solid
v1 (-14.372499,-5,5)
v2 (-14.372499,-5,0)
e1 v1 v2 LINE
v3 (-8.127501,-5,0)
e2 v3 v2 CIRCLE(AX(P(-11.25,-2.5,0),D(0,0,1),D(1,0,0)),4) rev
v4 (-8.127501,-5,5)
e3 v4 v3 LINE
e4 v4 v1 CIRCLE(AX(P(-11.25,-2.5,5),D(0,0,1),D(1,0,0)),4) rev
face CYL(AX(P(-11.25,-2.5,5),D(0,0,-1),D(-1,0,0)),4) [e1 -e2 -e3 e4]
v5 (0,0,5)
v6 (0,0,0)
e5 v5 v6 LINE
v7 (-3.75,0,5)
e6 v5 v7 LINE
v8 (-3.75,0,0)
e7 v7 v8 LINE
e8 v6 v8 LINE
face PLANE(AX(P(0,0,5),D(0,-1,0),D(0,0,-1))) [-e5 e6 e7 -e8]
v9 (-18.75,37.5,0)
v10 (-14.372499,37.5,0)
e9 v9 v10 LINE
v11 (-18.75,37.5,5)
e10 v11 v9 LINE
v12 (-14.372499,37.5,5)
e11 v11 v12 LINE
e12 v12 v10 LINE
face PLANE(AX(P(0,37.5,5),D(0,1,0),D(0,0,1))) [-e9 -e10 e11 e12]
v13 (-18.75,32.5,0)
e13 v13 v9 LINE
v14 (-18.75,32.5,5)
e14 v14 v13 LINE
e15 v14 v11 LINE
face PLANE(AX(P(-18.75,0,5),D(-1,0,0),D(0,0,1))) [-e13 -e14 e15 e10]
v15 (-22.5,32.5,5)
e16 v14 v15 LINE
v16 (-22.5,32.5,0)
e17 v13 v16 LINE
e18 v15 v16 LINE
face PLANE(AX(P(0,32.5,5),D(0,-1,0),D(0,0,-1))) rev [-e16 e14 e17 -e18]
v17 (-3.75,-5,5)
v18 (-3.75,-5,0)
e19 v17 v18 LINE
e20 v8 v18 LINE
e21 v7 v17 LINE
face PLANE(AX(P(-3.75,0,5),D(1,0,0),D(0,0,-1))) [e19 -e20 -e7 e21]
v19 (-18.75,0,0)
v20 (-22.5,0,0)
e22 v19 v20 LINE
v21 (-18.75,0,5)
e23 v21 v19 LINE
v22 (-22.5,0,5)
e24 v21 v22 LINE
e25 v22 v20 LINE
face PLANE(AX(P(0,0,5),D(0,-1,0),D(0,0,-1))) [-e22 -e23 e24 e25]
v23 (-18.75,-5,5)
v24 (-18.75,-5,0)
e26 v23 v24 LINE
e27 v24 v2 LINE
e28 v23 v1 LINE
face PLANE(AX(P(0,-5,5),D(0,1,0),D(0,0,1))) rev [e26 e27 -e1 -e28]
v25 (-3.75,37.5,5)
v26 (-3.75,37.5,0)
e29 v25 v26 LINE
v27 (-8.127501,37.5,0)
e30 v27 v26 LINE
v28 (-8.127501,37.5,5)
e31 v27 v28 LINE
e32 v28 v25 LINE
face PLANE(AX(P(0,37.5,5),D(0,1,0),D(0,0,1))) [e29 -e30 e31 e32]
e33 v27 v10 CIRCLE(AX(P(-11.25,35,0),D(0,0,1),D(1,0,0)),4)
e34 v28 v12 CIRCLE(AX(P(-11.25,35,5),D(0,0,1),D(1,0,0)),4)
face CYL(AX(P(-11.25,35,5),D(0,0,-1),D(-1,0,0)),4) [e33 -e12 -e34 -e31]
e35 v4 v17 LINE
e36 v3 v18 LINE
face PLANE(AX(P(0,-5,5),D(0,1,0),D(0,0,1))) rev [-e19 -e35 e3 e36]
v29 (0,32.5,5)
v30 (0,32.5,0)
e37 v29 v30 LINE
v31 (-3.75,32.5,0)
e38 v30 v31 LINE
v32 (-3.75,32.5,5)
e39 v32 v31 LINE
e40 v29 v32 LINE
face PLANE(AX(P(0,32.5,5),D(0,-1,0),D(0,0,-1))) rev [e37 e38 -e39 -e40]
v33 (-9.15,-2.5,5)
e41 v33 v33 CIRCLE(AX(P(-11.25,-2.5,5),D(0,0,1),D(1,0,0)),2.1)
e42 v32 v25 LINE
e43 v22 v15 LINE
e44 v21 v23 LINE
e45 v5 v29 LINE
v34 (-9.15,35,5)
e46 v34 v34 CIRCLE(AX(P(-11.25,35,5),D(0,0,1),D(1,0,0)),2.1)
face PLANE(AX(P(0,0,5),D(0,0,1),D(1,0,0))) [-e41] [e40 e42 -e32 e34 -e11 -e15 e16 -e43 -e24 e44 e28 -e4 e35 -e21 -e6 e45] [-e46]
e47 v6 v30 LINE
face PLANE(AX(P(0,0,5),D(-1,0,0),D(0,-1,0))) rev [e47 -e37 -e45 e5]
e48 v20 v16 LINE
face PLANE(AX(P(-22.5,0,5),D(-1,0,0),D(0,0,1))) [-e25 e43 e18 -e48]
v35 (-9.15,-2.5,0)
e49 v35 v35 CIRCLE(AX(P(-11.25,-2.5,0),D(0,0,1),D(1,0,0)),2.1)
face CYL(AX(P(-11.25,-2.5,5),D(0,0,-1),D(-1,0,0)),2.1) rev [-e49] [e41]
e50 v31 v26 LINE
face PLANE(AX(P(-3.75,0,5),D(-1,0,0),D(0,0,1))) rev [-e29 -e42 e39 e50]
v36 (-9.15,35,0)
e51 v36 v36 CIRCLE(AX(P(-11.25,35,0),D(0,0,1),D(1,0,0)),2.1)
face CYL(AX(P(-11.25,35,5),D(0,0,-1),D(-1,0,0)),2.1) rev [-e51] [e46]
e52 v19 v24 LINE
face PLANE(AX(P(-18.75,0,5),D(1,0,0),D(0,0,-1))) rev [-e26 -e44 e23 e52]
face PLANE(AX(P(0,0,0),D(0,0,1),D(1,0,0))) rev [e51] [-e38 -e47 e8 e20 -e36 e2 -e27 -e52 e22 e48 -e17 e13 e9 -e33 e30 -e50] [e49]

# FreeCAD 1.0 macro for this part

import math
import FreeCAD as App
import Part
import Sketcher

V = App.Vector

doc = App.newDocument("Part")
body = doc.addObject("PartDesign::Body", "Body")

sketch1 = body.newObject("Sketcher::SketchObject", "Sketch")
sketch1.AttachmentSupport = (doc.getObject("XY_Plane"), [""])
sketch1.MapMode = "FlatFace"
sketch1.addGeometry([
    Part.LineSegment(V(-18.75, 37.5, 0), V(-18.75, 32.5, 0)),
    Part.LineSegment(V(-18.75, 32.5, 0), V(-22.5, 32.5, 0)),
    Part.LineSegment(V(-22.5, 32.5, 0), V(-22.5, 0, 0)),
    Part.LineSegment(V(-22.5, 0, 0), V(-18.75, 0, 0)),
    Part.LineSegment(V(-18.75, 0, 0), V(-18.75, -5, 0)),
    Part.LineSegment(V(-18.75, -5, 0), V(-14.372499, -5, 0)),
    Part.ArcOfCircle(Part.Circle(V(-11.25, -2.5, 0), V(0, 0, 1), 4), math.radians(-141.317813), math.radians(-38.682187)),
    Part.LineSegment(V(-8.127501, -5, 0), V(-3.75, -5, 0)),
    Part.LineSegment(V(-3.75, -5, 0), V(-3.75, 0, 0)),
    Part.LineSegment(V(-3.75, 0, 0), V(0, 0, 0)),
    Part.LineSegment(V(0, 0, 0), V(0, 32.5, 0)),
    Part.LineSegment(V(0, 32.5, 0), V(-3.75, 32.5, 0)),
    Part.LineSegment(V(-3.75, 32.5, 0), V(-3.75, 37.5, 0)),
    Part.LineSegment(V(-3.75, 37.5, 0), V(-8.127501, 37.5, 0)),
    Part.ArcOfCircle(Part.Circle(V(-11.25, 35, 0), V(0, 0, 1), 4), math.radians(38.682187), math.radians(141.317813)),
    Part.LineSegment(V(-14.372499, 37.5, 0), V(-18.75, 37.5, 0)),
    Part.Circle(V(-11.25, 35, 0), V(0, 0, 1), 2.1),
    Part.Circle(V(-11.25, -2.5, 0), V(0, 0, 1), 2.1),
], False)
sketch1.addConstraint([
    Sketcher.Constraint("Coincident", 0, 2, 1, 1),
    Sketcher.Constraint("Coincident", 1, 2, 2, 1),
    Sketcher.Constraint("Coincident", 2, 2, 3, 1),
    Sketcher.Constraint("Coincident", 3, 2, 4, 1),
    Sketcher.Constraint("Coincident", 4, 2, 5, 1),
    Sketcher.Constraint("Coincident", 5, 2, 6, 1),
    Sketcher.Constraint("Coincident", 6, 2, 7, 1),
    Sketcher.Constraint("Coincident", 7, 2, 8, 1),
    Sketcher.Constraint("Coincident", 8, 2, 9, 1),
    Sketcher.Constraint("Coincident", 9, 2, 10, 1),
    Sketcher.Constraint("Coincident", 10, 2, 11, 1),
    Sketcher.Constraint("Coincident", 11, 2, 12, 1),
    Sketcher.Constraint("Coincident", 12, 2, 13, 1),
    Sketcher.Constraint("Coincident", 13, 2, 14, 1),
    Sketcher.Constraint("Coincident", 14, 2, 15, 1),
    Sketcher.Constraint("Coincident", 15, 2, 0, 1),
    Sketcher.Constraint("Vertical", 0),
    Sketcher.Constraint("Horizontal", 1),
    Sketcher.Constraint("Vertical", 2),
    Sketcher.Constraint("Horizontal", 3),
    Sketcher.Constraint("Vertical", 4),
    Sketcher.Constraint("Horizontal", 5),
    Sketcher.Constraint("Horizontal", 7),
    Sketcher.Constraint("Vertical", 8),
    Sketcher.Constraint("Horizontal", 9),
    Sketcher.Constraint("Vertical", 10),
    Sketcher.Constraint("Horizontal", 11),
    Sketcher.Constraint("Vertical", 12),
    Sketcher.Constraint("Horizontal", 13),
    Sketcher.Constraint("Horizontal", 15),
    Sketcher.Constraint("Coincident", 9, 2, -1, 1),
    Sketcher.Constraint("Coincident", 16, 3, 14, 3),
    Sketcher.Constraint("Coincident", 17, 3, 6, 3),
    Sketcher.Constraint("Equal", 6, 14),
    Sketcher.Constraint("Equal", 16, 17),
    Sketcher.Constraint("PointOnObject", 2, 2, -1),
    Sketcher.Constraint("Horizontal", 5, 2, 6, 2),
    Sketcher.Constraint("Horizontal", 1, 2, 10, 2),
    Sketcher.Constraint("Horizontal", 13, 2, 14, 2),
    Sketcher.Constraint("Vertical", 6, 3, 14, 3),
    Sketcher.Constraint("Vertical", 0, 2, 3, 2),
    Sketcher.Constraint("Vertical", 8, 2, 11, 2),
    Sketcher.Constraint("Vertical", 6, 2, 13, 2),
    Sketcher.Constraint("Equal", 5, 7),
    Sketcher.Constraint("Equal", 3, 9),
    Sketcher.Constraint("Equal", 0, 4),
    Sketcher.Constraint("Radius", 6, 4.0),
    Sketcher.Constraint("Diameter", 16, 4.2),
    Sketcher.Constraint("DistanceY", 0, 2, 0, 1, 5.0),
    Sketcher.Constraint("DistanceY", 2, 2, 2, 1, 32.5),
    Sketcher.Constraint("DistanceY", -1, 1, 14, 3, 35.0),
    Sketcher.Constraint("DistanceX", 4, 2, 7, 2, 15.0),
    Sketcher.Constraint("DistanceX", 1, 2, 1, 1, 3.75),
])
pad1 = body.newObject("PartDesign::Pad", "Pad")
pad1.Profile = sketch1
pad1.Length = 5

doc.recompute()
